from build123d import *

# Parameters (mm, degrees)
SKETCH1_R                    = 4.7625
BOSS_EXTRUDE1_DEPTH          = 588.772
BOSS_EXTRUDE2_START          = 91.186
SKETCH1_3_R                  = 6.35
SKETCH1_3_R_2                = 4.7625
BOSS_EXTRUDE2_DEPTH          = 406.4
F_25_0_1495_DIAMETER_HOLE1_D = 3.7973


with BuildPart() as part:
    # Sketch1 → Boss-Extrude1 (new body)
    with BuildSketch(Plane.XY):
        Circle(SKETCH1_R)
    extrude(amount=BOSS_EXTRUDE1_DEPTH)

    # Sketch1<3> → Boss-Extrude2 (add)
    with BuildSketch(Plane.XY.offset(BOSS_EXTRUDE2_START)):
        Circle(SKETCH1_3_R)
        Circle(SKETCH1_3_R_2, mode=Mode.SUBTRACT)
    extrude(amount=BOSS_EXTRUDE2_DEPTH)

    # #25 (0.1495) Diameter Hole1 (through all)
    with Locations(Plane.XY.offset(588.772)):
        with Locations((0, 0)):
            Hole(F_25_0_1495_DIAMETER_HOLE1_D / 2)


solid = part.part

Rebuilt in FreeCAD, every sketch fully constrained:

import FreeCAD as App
import Part
import Sketcher

V = App.Vector
Q = App.Units.Quantity

doc = App.newDocument("Part")
body = doc.addObject("PartDesign::Body", "Body")

sketch1 = doc.addObject("Sketcher::SketchObject", "Sketch")
body.addObject(sketch1)
sketch1.AttachmentSupport = (doc.XY_Plane, [""])
sketch1.MapMode = "FlatFace"
sketch1.addGeometry(Part.Circle(V(0, 0, 0), V(0, 0, 1), 4.7625), False)
sketch1.addConstraint(Sketcher.Constraint("Coincident", 0, 3, -1, 1))
sketch1.addConstraint(Sketcher.Constraint("Diameter", 0, Q("0.375 in")))
pad1 = doc.addObject("PartDesign::Pad", "Pad")
body.addObject(pad1)
pad1.Profile = sketch1
pad1.Length = Q("23.18 in")

sketch2 = doc.addObject("Sketcher::SketchObject", "Sketch001")
body.addObject(sketch2)
sketch2.AttachmentSupport = (doc.XY_Plane, [""])
sketch2.MapMode = "FlatFace"
sketch2.AttachmentOffset = App.Placement(V(0, 0, 3.59 * 25.4), App.Rotation())
sketch2.addGeometry(Part.Circle(V(0, 0, 0), V(0, 0, 1), 6.35), False)
sketch2.addGeometry(Part.Circle(V(0, 0, 0), V(0, 0, 1), 4.7625), False)
sketch2.addConstraint(Sketcher.Constraint("Coincident", 0, 3, -1, 1))
sketch2.addConstraint(Sketcher.Constraint("Coincident", 1, 3, -1, 1))
sketch2.addConstraint(Sketcher.Constraint("Diameter", 0, Q("0.5 in")))
sketch2.addConstraint(Sketcher.Constraint("Diameter", 1, Q("0.375 in")))
pad2 = doc.addObject("PartDesign::Pad", "Pad001")
body.addObject(pad2)
pad2.Profile = sketch2
pad2.Length = Q("16 in")

sketch3 = doc.addObject("Sketcher::SketchObject", "Sketch002")
body.addObject(sketch3)
sketch3.AttachmentSupport = (doc.XY_Plane, [""])
sketch3.MapMode = "FlatFace"
sketch3.AttachmentOffset = App.Placement(V(0, 0, 23.18 * 25.4), App.Rotation())
sketch3.addGeometry(Part.Circle(V(0, 0, 0), V(0, 0, 1), 1.89865), False)
sketch3.addConstraint(Sketcher.Constraint("Coincident", 0, 3, -1, 1))
sketch3.addConstraint(Sketcher.Constraint("Diameter", 0, Q("0.1495 in")))
doc.recompute()
hole = doc.addObject("PartDesign::Hole", "Hole")
body.addObject(hole)
hole.Profile = sketch3
hole.ThreadType = "None"
hole.Diameter = Q("0.1495 in")
hole.DepthType = "ThroughAll"

doc.recompute()
